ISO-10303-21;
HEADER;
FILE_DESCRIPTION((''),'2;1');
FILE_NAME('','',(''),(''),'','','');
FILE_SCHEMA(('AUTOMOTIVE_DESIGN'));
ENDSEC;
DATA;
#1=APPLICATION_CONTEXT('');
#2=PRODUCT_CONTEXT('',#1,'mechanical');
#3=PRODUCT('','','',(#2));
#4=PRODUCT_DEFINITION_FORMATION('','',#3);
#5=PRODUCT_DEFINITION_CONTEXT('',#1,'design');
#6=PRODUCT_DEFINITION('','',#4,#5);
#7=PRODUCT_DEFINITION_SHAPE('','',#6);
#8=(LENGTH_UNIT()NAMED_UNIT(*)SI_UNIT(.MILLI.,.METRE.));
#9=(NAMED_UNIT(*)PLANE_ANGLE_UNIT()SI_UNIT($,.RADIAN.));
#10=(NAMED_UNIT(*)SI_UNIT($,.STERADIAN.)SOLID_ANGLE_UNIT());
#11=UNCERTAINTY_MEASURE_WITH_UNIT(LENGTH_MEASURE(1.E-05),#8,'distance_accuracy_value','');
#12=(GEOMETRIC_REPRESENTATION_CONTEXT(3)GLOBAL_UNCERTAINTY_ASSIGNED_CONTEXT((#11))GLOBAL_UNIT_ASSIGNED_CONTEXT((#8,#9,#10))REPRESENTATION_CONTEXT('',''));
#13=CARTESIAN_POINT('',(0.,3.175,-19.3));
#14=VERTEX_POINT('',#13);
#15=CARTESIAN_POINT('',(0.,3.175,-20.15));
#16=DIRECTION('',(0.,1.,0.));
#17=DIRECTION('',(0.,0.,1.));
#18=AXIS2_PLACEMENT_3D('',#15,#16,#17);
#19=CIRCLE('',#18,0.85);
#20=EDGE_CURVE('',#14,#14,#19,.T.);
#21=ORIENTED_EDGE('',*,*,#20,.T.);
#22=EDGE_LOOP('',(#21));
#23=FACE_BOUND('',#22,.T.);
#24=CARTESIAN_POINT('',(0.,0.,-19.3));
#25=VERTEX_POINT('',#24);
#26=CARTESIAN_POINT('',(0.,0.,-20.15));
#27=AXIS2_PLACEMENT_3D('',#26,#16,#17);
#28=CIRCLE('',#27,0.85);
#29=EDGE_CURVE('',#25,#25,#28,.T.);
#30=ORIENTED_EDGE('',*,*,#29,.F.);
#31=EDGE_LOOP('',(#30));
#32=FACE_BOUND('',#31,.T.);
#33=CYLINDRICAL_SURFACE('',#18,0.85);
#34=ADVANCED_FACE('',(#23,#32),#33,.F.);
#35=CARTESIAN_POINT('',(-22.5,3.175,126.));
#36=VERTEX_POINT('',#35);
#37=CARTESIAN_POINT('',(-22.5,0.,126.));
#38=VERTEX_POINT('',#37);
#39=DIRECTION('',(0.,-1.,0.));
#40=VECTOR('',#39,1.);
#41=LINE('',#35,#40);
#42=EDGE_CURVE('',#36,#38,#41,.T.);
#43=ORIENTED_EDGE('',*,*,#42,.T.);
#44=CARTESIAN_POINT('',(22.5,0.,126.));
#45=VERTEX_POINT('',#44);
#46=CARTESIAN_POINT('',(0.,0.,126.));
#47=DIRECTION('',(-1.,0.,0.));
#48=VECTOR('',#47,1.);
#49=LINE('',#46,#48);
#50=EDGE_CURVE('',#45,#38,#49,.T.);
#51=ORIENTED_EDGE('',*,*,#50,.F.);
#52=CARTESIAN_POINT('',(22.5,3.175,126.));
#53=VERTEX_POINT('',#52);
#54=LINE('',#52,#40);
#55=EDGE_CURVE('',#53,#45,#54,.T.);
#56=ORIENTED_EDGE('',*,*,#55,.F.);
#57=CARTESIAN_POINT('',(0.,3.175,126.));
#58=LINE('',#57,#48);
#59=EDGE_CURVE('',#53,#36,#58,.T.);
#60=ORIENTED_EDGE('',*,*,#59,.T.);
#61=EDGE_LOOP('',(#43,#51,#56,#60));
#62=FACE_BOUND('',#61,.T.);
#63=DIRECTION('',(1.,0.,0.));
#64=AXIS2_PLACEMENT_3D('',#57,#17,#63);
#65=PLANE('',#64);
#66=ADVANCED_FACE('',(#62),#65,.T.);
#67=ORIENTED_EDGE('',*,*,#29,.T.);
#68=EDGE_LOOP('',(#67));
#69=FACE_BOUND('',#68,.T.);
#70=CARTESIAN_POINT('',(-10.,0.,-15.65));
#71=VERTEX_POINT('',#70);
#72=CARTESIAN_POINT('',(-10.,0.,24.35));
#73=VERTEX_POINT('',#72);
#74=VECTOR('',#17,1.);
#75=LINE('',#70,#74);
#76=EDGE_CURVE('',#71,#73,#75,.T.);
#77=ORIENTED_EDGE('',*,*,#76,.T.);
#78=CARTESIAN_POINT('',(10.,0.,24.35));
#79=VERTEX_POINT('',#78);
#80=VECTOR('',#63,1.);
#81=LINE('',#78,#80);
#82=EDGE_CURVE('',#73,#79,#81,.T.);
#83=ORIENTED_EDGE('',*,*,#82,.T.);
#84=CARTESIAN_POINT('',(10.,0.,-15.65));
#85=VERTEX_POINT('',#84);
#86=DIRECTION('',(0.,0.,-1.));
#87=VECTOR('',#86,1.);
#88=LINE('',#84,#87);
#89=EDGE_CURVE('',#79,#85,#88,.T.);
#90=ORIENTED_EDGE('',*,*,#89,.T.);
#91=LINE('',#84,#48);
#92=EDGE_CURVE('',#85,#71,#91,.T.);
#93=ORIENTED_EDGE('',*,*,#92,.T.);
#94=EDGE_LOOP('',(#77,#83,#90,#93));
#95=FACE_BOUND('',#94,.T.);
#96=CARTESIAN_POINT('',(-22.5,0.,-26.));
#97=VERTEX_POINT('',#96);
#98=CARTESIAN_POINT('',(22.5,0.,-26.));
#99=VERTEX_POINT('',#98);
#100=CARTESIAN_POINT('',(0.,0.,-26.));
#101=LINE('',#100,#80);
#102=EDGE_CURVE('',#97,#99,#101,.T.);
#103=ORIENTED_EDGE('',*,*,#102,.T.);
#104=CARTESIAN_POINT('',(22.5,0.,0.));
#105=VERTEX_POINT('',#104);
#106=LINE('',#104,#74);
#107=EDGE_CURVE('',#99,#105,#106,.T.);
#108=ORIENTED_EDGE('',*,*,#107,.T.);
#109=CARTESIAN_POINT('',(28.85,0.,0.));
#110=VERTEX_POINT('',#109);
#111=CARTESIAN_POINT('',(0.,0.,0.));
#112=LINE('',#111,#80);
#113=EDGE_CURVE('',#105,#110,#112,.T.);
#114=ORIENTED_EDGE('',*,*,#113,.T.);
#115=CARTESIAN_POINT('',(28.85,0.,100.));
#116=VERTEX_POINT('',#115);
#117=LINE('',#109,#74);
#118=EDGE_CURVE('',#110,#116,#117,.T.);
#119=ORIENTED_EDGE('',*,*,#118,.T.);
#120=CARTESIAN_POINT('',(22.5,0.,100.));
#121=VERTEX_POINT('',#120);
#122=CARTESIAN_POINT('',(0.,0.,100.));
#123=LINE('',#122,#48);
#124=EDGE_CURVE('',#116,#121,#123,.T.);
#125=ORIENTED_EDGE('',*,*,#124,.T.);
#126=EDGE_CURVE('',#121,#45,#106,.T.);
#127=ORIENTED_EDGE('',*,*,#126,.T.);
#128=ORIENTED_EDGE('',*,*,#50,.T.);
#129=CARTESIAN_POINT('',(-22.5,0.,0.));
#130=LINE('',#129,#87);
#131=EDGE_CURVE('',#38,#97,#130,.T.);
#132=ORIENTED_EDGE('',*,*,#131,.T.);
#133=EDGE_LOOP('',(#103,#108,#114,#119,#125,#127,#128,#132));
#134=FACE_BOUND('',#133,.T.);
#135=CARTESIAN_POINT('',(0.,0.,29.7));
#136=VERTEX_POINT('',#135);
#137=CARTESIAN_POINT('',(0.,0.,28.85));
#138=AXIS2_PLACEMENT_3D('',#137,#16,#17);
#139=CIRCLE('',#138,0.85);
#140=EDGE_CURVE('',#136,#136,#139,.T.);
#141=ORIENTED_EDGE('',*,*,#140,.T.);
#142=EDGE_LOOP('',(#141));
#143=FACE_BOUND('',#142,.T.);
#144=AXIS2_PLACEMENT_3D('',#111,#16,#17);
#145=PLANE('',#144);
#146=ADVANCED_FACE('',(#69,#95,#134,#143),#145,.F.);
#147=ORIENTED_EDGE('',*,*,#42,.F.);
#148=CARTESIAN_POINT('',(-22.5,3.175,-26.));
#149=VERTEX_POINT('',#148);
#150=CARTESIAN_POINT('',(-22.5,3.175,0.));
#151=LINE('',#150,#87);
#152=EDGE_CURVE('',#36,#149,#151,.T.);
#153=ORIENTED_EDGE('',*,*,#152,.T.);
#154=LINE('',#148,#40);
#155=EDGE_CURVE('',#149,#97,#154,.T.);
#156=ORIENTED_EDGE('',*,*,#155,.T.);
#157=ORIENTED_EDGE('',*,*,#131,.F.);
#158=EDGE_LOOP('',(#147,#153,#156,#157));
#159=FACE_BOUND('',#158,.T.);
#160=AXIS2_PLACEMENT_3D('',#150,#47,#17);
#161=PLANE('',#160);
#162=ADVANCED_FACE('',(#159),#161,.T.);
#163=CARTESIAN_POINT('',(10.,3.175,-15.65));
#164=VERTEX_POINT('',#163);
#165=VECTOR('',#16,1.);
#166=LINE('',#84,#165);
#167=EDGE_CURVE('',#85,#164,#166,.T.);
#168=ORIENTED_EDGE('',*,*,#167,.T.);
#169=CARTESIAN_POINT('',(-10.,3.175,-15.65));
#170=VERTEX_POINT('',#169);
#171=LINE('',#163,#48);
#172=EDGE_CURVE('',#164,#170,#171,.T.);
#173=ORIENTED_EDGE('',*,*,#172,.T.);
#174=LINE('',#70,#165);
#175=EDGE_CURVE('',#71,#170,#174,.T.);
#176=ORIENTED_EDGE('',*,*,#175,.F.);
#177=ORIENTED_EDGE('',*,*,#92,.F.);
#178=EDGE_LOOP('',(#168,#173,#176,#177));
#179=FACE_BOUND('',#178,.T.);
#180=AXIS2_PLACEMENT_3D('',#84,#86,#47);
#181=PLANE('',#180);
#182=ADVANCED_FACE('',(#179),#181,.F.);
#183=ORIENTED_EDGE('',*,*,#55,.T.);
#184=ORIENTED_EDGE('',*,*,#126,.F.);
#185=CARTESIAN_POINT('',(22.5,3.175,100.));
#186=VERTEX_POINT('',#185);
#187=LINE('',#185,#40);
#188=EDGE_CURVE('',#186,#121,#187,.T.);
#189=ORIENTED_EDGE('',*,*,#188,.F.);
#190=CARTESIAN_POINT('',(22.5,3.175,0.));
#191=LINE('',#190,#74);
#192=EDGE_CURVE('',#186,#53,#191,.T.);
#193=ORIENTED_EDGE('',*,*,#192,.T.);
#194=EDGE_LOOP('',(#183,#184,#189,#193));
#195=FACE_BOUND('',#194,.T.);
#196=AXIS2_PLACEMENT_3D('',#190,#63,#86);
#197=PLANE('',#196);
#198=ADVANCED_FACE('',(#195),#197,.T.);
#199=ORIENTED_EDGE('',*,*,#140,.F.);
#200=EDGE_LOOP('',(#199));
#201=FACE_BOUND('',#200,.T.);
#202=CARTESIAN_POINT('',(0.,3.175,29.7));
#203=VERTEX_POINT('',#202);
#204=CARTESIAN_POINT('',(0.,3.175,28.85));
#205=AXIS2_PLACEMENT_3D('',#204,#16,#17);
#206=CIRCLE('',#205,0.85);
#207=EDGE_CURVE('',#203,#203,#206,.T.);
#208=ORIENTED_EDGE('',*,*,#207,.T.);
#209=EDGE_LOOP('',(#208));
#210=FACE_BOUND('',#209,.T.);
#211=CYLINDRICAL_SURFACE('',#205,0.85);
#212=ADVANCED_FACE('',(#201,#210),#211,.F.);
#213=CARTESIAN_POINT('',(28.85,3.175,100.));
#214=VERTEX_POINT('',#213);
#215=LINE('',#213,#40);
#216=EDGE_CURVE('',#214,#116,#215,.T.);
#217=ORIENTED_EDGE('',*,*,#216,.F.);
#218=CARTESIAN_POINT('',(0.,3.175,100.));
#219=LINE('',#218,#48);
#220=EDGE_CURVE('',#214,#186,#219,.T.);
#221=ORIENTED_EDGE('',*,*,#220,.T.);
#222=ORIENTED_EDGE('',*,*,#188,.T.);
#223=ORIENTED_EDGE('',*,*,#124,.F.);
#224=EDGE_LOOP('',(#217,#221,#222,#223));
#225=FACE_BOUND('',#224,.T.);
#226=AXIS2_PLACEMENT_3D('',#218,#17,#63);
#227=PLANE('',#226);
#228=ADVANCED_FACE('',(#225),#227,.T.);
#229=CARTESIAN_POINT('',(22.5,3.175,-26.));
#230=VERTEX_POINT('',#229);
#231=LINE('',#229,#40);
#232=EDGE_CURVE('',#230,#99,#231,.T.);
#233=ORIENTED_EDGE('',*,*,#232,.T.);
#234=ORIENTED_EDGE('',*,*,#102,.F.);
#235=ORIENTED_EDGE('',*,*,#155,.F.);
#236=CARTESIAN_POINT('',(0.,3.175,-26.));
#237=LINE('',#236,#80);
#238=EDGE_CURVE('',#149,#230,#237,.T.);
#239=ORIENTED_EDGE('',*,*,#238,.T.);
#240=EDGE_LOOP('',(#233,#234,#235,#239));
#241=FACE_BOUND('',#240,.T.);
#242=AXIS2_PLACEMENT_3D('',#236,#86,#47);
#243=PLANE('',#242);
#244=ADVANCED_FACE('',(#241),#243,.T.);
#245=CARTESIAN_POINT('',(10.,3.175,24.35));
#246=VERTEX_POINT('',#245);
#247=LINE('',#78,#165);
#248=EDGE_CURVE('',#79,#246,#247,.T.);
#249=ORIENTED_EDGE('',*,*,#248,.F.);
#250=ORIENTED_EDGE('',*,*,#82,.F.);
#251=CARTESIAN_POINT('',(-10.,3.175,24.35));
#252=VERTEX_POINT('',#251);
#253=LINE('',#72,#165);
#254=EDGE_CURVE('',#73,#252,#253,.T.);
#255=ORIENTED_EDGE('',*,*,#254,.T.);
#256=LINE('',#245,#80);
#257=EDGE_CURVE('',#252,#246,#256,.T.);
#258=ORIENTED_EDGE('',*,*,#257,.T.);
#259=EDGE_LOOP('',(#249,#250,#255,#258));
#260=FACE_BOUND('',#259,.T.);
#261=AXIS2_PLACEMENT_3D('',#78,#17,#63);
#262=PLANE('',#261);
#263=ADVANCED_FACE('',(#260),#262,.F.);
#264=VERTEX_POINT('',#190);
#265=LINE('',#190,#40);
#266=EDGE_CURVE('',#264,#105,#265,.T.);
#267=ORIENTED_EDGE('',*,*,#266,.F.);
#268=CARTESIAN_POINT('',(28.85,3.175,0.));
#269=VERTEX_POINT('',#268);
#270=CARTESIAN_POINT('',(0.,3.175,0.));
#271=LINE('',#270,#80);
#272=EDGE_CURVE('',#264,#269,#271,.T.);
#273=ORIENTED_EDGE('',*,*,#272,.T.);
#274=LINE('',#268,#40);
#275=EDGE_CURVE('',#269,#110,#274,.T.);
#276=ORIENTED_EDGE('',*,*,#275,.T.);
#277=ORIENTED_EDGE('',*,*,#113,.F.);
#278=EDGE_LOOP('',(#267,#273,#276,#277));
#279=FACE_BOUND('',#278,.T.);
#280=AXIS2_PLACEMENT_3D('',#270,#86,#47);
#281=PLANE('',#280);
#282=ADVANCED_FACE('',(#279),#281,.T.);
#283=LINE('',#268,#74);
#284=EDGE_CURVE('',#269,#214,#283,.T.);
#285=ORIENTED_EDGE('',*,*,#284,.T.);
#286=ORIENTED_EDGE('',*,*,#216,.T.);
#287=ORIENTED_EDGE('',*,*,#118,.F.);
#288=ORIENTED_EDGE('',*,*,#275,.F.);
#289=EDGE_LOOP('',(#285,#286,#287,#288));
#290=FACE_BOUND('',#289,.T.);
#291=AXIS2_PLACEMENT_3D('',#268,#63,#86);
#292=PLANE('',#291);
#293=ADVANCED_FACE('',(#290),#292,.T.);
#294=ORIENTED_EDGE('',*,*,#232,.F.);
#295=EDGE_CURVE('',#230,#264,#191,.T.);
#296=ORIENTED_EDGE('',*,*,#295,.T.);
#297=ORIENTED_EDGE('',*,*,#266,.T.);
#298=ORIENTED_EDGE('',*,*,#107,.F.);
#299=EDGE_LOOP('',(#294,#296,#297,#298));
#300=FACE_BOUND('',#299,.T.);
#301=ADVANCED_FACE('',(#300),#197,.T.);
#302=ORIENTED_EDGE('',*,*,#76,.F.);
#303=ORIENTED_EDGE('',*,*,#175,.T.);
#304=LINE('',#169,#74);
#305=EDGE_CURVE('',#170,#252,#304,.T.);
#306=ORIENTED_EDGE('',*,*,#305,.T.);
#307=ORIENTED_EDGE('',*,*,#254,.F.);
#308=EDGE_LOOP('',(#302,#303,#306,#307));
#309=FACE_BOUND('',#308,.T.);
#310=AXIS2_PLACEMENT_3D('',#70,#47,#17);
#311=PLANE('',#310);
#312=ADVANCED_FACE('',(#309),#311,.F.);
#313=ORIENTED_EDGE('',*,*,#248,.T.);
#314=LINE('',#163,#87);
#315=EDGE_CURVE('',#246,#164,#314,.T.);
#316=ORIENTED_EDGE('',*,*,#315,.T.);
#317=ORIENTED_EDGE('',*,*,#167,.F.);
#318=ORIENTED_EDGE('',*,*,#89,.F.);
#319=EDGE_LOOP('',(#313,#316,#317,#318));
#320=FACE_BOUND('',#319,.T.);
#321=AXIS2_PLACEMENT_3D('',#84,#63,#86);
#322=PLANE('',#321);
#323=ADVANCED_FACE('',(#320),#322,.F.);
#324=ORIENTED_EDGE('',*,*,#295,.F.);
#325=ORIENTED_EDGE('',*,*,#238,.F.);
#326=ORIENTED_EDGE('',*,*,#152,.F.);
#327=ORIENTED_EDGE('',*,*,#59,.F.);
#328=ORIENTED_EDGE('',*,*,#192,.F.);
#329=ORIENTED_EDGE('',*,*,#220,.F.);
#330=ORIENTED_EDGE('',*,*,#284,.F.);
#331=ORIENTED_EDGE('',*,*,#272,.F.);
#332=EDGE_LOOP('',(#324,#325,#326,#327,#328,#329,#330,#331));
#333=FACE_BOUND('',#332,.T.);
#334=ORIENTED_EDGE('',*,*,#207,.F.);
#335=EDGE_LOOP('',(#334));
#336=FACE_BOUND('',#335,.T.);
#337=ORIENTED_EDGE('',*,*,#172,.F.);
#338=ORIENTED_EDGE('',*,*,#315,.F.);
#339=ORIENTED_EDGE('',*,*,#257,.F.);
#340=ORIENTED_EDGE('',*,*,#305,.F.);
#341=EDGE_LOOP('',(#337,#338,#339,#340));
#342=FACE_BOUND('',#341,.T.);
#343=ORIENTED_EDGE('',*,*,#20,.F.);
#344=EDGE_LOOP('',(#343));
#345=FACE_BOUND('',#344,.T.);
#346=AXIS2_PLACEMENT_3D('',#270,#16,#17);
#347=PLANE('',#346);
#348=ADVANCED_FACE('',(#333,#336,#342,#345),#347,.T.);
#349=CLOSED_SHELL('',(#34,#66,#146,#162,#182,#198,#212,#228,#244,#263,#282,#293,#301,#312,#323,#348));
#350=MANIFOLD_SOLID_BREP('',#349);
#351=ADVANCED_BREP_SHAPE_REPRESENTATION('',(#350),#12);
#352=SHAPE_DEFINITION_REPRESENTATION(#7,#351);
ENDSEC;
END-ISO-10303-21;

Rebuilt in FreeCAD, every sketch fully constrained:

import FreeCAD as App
import Part
import Sketcher

V = App.Vector
Q = App.Units.Quantity


def add_polygon(sketch, points):
    """Adds a closed chain of lines whose ends are joined by coincident constraints."""
    first, n = sketch.GeometryCount, len(points)
    for a, b in zip(points, points[1:] + points[:1]):
        sketch.addGeometry(Part.LineSegment(App.Vector(*a, 0), App.Vector(*b, 0)), False)
    for i in range(n):
        sketch.addConstraint(Sketcher.Constraint("Coincident", first + i, 2, first + (i + 1) % n, 1))

doc = App.newDocument("Part")
body = doc.addObject("PartDesign::Body", "Body")

# Sketch on XZ plane
sketch1 = body.newObject("Sketcher::SketchObject", "Sketch")
sketch1.AttachmentSupport = (doc.getObject("XZ_Plane"), [""])
sketch1.MapMode = "FlatFace"
add_polygon(sketch1, [(-22.5, -26), (-22.5, 126), (22.5, 126), (22.5, 100), (28.85, 100), (28.85, 0), (22.5, 0), (22.5, -26)])  # lines 0-7
sketch1.addConstraint([
    Sketcher.Constraint("Vertical", 0),
    Sketcher.Constraint("Horizontal", 1),
    Sketcher.Constraint("Vertical", 2),
    Sketcher.Constraint("Horizontal", 3),
    Sketcher.Constraint("Vertical", 4),
    Sketcher.Constraint("Horizontal", 5),
    Sketcher.Constraint("Vertical", 6),
    Sketcher.Constraint("Horizontal", 7),
    Sketcher.Constraint("PointOnObject", 4, 2, -1),
    Sketcher.Constraint("Vertical", 2, 2, 5, 2),
    Sketcher.Constraint("Equal", 2, 6),
    Sketcher.Constraint("DistanceX", 1, 1, 1, 2, Q("45 mm")),
    Sketcher.Constraint("DistanceY", 0, 1, 0, 2, Q("152 mm")),
    Sketcher.Constraint("DistanceY", 2, 2, 2, 1, Q("26 mm")),
    Sketcher.Constraint("DistanceX", 3, 1, 3, 2, Q("6.35 mm")),
    Sketcher.Constraint("DistanceX", 0, 2, -1, 1, Q("22.5 mm")),
])
pad1 = body.newObject("PartDesign::Pad", "Pad")
pad1.Profile = sketch1
pad1.Length = 3.175
pad1.Reversed = True

# Sketch on XZ plane
sketch2 = body.newObject("Sketcher::SketchObject", "Sketch001")
sketch2.AttachmentSupport = (doc.getObject("XZ_Plane"), [""])
sketch2.MapMode = "FlatFace"
sketch2.AttachmentOffset = App.Placement(V(0, 0, -3.175), App.Rotation())
add_polygon(sketch2, [(-10, -15.65), (-10, 24.35), (10, 24.35), (10, -15.65)])  # lines 0-3
sketch2.addConstraint([
    Sketcher.Constraint("Vertical", 0),
    Sketcher.Constraint("Horizontal", 1),
    Sketcher.Constraint("Vertical", 2),
    Sketcher.Constraint("Horizontal", 3),
    Sketcher.Constraint("DistanceX", 1, 1, 1, 2, Q("20 mm")),
    Sketcher.Constraint("DistanceY", 0, 1, 0, 2, Q("40 mm")),
    Sketcher.Constraint("DistanceX", 0, 2, -1, 1, Q("10 mm")),
    Sketcher.Constraint("DistanceY", -1, 1, 0, 2, Q("24.35 mm")),
])
pocket1 = body.newObject("PartDesign::Pocket", "Pocket")
pocket1.Profile = sketch2
pocket1.Type = "ThroughAll"
pocket1.Reversed = True

# Sketch on XZ plane
sketch3 = body.newObject("Sketcher::SketchObject", "Sketch002")
sketch3.AttachmentSupport = (doc.getObject("XZ_Plane"), [""])
sketch3.MapMode = "FlatFace"
sketch3.AttachmentOffset = App.Placement(V(0, 0, -3.175), App.Rotation())
sketch3.addGeometry([
    Part.Circle(V(0, 28.85, 0), V(0, 0, 1), 0.85),
    Part.Circle(V(0, -20.15, 0), V(0, 0, 1), 0.85),
], False)
sketch3.addConstraint([
    Sketcher.Constraint("Equal", 0, 1),
    Sketcher.Constraint("PointOnObject", 0, 3, -2),
    Sketcher.Constraint("PointOnObject", 1, 3, -2),
    Sketcher.Constraint("Diameter", 0, Q("1.7 mm")),
    Sketcher.Constraint("DistanceY", 1, 3, 0, 3, Q("49 mm")),
    Sketcher.Constraint("DistanceY", -1, 1, 0, 3, Q("28.85 mm")),
])
doc.recompute()
hole = body.newObject("PartDesign::Hole", "Hole")
hole.Profile = sketch3
hole.ThreadType = "None"
hole.Diameter = 1.7
hole.DepthType = "ThroughAll"
hole.Reversed = True

doc.recompute()
